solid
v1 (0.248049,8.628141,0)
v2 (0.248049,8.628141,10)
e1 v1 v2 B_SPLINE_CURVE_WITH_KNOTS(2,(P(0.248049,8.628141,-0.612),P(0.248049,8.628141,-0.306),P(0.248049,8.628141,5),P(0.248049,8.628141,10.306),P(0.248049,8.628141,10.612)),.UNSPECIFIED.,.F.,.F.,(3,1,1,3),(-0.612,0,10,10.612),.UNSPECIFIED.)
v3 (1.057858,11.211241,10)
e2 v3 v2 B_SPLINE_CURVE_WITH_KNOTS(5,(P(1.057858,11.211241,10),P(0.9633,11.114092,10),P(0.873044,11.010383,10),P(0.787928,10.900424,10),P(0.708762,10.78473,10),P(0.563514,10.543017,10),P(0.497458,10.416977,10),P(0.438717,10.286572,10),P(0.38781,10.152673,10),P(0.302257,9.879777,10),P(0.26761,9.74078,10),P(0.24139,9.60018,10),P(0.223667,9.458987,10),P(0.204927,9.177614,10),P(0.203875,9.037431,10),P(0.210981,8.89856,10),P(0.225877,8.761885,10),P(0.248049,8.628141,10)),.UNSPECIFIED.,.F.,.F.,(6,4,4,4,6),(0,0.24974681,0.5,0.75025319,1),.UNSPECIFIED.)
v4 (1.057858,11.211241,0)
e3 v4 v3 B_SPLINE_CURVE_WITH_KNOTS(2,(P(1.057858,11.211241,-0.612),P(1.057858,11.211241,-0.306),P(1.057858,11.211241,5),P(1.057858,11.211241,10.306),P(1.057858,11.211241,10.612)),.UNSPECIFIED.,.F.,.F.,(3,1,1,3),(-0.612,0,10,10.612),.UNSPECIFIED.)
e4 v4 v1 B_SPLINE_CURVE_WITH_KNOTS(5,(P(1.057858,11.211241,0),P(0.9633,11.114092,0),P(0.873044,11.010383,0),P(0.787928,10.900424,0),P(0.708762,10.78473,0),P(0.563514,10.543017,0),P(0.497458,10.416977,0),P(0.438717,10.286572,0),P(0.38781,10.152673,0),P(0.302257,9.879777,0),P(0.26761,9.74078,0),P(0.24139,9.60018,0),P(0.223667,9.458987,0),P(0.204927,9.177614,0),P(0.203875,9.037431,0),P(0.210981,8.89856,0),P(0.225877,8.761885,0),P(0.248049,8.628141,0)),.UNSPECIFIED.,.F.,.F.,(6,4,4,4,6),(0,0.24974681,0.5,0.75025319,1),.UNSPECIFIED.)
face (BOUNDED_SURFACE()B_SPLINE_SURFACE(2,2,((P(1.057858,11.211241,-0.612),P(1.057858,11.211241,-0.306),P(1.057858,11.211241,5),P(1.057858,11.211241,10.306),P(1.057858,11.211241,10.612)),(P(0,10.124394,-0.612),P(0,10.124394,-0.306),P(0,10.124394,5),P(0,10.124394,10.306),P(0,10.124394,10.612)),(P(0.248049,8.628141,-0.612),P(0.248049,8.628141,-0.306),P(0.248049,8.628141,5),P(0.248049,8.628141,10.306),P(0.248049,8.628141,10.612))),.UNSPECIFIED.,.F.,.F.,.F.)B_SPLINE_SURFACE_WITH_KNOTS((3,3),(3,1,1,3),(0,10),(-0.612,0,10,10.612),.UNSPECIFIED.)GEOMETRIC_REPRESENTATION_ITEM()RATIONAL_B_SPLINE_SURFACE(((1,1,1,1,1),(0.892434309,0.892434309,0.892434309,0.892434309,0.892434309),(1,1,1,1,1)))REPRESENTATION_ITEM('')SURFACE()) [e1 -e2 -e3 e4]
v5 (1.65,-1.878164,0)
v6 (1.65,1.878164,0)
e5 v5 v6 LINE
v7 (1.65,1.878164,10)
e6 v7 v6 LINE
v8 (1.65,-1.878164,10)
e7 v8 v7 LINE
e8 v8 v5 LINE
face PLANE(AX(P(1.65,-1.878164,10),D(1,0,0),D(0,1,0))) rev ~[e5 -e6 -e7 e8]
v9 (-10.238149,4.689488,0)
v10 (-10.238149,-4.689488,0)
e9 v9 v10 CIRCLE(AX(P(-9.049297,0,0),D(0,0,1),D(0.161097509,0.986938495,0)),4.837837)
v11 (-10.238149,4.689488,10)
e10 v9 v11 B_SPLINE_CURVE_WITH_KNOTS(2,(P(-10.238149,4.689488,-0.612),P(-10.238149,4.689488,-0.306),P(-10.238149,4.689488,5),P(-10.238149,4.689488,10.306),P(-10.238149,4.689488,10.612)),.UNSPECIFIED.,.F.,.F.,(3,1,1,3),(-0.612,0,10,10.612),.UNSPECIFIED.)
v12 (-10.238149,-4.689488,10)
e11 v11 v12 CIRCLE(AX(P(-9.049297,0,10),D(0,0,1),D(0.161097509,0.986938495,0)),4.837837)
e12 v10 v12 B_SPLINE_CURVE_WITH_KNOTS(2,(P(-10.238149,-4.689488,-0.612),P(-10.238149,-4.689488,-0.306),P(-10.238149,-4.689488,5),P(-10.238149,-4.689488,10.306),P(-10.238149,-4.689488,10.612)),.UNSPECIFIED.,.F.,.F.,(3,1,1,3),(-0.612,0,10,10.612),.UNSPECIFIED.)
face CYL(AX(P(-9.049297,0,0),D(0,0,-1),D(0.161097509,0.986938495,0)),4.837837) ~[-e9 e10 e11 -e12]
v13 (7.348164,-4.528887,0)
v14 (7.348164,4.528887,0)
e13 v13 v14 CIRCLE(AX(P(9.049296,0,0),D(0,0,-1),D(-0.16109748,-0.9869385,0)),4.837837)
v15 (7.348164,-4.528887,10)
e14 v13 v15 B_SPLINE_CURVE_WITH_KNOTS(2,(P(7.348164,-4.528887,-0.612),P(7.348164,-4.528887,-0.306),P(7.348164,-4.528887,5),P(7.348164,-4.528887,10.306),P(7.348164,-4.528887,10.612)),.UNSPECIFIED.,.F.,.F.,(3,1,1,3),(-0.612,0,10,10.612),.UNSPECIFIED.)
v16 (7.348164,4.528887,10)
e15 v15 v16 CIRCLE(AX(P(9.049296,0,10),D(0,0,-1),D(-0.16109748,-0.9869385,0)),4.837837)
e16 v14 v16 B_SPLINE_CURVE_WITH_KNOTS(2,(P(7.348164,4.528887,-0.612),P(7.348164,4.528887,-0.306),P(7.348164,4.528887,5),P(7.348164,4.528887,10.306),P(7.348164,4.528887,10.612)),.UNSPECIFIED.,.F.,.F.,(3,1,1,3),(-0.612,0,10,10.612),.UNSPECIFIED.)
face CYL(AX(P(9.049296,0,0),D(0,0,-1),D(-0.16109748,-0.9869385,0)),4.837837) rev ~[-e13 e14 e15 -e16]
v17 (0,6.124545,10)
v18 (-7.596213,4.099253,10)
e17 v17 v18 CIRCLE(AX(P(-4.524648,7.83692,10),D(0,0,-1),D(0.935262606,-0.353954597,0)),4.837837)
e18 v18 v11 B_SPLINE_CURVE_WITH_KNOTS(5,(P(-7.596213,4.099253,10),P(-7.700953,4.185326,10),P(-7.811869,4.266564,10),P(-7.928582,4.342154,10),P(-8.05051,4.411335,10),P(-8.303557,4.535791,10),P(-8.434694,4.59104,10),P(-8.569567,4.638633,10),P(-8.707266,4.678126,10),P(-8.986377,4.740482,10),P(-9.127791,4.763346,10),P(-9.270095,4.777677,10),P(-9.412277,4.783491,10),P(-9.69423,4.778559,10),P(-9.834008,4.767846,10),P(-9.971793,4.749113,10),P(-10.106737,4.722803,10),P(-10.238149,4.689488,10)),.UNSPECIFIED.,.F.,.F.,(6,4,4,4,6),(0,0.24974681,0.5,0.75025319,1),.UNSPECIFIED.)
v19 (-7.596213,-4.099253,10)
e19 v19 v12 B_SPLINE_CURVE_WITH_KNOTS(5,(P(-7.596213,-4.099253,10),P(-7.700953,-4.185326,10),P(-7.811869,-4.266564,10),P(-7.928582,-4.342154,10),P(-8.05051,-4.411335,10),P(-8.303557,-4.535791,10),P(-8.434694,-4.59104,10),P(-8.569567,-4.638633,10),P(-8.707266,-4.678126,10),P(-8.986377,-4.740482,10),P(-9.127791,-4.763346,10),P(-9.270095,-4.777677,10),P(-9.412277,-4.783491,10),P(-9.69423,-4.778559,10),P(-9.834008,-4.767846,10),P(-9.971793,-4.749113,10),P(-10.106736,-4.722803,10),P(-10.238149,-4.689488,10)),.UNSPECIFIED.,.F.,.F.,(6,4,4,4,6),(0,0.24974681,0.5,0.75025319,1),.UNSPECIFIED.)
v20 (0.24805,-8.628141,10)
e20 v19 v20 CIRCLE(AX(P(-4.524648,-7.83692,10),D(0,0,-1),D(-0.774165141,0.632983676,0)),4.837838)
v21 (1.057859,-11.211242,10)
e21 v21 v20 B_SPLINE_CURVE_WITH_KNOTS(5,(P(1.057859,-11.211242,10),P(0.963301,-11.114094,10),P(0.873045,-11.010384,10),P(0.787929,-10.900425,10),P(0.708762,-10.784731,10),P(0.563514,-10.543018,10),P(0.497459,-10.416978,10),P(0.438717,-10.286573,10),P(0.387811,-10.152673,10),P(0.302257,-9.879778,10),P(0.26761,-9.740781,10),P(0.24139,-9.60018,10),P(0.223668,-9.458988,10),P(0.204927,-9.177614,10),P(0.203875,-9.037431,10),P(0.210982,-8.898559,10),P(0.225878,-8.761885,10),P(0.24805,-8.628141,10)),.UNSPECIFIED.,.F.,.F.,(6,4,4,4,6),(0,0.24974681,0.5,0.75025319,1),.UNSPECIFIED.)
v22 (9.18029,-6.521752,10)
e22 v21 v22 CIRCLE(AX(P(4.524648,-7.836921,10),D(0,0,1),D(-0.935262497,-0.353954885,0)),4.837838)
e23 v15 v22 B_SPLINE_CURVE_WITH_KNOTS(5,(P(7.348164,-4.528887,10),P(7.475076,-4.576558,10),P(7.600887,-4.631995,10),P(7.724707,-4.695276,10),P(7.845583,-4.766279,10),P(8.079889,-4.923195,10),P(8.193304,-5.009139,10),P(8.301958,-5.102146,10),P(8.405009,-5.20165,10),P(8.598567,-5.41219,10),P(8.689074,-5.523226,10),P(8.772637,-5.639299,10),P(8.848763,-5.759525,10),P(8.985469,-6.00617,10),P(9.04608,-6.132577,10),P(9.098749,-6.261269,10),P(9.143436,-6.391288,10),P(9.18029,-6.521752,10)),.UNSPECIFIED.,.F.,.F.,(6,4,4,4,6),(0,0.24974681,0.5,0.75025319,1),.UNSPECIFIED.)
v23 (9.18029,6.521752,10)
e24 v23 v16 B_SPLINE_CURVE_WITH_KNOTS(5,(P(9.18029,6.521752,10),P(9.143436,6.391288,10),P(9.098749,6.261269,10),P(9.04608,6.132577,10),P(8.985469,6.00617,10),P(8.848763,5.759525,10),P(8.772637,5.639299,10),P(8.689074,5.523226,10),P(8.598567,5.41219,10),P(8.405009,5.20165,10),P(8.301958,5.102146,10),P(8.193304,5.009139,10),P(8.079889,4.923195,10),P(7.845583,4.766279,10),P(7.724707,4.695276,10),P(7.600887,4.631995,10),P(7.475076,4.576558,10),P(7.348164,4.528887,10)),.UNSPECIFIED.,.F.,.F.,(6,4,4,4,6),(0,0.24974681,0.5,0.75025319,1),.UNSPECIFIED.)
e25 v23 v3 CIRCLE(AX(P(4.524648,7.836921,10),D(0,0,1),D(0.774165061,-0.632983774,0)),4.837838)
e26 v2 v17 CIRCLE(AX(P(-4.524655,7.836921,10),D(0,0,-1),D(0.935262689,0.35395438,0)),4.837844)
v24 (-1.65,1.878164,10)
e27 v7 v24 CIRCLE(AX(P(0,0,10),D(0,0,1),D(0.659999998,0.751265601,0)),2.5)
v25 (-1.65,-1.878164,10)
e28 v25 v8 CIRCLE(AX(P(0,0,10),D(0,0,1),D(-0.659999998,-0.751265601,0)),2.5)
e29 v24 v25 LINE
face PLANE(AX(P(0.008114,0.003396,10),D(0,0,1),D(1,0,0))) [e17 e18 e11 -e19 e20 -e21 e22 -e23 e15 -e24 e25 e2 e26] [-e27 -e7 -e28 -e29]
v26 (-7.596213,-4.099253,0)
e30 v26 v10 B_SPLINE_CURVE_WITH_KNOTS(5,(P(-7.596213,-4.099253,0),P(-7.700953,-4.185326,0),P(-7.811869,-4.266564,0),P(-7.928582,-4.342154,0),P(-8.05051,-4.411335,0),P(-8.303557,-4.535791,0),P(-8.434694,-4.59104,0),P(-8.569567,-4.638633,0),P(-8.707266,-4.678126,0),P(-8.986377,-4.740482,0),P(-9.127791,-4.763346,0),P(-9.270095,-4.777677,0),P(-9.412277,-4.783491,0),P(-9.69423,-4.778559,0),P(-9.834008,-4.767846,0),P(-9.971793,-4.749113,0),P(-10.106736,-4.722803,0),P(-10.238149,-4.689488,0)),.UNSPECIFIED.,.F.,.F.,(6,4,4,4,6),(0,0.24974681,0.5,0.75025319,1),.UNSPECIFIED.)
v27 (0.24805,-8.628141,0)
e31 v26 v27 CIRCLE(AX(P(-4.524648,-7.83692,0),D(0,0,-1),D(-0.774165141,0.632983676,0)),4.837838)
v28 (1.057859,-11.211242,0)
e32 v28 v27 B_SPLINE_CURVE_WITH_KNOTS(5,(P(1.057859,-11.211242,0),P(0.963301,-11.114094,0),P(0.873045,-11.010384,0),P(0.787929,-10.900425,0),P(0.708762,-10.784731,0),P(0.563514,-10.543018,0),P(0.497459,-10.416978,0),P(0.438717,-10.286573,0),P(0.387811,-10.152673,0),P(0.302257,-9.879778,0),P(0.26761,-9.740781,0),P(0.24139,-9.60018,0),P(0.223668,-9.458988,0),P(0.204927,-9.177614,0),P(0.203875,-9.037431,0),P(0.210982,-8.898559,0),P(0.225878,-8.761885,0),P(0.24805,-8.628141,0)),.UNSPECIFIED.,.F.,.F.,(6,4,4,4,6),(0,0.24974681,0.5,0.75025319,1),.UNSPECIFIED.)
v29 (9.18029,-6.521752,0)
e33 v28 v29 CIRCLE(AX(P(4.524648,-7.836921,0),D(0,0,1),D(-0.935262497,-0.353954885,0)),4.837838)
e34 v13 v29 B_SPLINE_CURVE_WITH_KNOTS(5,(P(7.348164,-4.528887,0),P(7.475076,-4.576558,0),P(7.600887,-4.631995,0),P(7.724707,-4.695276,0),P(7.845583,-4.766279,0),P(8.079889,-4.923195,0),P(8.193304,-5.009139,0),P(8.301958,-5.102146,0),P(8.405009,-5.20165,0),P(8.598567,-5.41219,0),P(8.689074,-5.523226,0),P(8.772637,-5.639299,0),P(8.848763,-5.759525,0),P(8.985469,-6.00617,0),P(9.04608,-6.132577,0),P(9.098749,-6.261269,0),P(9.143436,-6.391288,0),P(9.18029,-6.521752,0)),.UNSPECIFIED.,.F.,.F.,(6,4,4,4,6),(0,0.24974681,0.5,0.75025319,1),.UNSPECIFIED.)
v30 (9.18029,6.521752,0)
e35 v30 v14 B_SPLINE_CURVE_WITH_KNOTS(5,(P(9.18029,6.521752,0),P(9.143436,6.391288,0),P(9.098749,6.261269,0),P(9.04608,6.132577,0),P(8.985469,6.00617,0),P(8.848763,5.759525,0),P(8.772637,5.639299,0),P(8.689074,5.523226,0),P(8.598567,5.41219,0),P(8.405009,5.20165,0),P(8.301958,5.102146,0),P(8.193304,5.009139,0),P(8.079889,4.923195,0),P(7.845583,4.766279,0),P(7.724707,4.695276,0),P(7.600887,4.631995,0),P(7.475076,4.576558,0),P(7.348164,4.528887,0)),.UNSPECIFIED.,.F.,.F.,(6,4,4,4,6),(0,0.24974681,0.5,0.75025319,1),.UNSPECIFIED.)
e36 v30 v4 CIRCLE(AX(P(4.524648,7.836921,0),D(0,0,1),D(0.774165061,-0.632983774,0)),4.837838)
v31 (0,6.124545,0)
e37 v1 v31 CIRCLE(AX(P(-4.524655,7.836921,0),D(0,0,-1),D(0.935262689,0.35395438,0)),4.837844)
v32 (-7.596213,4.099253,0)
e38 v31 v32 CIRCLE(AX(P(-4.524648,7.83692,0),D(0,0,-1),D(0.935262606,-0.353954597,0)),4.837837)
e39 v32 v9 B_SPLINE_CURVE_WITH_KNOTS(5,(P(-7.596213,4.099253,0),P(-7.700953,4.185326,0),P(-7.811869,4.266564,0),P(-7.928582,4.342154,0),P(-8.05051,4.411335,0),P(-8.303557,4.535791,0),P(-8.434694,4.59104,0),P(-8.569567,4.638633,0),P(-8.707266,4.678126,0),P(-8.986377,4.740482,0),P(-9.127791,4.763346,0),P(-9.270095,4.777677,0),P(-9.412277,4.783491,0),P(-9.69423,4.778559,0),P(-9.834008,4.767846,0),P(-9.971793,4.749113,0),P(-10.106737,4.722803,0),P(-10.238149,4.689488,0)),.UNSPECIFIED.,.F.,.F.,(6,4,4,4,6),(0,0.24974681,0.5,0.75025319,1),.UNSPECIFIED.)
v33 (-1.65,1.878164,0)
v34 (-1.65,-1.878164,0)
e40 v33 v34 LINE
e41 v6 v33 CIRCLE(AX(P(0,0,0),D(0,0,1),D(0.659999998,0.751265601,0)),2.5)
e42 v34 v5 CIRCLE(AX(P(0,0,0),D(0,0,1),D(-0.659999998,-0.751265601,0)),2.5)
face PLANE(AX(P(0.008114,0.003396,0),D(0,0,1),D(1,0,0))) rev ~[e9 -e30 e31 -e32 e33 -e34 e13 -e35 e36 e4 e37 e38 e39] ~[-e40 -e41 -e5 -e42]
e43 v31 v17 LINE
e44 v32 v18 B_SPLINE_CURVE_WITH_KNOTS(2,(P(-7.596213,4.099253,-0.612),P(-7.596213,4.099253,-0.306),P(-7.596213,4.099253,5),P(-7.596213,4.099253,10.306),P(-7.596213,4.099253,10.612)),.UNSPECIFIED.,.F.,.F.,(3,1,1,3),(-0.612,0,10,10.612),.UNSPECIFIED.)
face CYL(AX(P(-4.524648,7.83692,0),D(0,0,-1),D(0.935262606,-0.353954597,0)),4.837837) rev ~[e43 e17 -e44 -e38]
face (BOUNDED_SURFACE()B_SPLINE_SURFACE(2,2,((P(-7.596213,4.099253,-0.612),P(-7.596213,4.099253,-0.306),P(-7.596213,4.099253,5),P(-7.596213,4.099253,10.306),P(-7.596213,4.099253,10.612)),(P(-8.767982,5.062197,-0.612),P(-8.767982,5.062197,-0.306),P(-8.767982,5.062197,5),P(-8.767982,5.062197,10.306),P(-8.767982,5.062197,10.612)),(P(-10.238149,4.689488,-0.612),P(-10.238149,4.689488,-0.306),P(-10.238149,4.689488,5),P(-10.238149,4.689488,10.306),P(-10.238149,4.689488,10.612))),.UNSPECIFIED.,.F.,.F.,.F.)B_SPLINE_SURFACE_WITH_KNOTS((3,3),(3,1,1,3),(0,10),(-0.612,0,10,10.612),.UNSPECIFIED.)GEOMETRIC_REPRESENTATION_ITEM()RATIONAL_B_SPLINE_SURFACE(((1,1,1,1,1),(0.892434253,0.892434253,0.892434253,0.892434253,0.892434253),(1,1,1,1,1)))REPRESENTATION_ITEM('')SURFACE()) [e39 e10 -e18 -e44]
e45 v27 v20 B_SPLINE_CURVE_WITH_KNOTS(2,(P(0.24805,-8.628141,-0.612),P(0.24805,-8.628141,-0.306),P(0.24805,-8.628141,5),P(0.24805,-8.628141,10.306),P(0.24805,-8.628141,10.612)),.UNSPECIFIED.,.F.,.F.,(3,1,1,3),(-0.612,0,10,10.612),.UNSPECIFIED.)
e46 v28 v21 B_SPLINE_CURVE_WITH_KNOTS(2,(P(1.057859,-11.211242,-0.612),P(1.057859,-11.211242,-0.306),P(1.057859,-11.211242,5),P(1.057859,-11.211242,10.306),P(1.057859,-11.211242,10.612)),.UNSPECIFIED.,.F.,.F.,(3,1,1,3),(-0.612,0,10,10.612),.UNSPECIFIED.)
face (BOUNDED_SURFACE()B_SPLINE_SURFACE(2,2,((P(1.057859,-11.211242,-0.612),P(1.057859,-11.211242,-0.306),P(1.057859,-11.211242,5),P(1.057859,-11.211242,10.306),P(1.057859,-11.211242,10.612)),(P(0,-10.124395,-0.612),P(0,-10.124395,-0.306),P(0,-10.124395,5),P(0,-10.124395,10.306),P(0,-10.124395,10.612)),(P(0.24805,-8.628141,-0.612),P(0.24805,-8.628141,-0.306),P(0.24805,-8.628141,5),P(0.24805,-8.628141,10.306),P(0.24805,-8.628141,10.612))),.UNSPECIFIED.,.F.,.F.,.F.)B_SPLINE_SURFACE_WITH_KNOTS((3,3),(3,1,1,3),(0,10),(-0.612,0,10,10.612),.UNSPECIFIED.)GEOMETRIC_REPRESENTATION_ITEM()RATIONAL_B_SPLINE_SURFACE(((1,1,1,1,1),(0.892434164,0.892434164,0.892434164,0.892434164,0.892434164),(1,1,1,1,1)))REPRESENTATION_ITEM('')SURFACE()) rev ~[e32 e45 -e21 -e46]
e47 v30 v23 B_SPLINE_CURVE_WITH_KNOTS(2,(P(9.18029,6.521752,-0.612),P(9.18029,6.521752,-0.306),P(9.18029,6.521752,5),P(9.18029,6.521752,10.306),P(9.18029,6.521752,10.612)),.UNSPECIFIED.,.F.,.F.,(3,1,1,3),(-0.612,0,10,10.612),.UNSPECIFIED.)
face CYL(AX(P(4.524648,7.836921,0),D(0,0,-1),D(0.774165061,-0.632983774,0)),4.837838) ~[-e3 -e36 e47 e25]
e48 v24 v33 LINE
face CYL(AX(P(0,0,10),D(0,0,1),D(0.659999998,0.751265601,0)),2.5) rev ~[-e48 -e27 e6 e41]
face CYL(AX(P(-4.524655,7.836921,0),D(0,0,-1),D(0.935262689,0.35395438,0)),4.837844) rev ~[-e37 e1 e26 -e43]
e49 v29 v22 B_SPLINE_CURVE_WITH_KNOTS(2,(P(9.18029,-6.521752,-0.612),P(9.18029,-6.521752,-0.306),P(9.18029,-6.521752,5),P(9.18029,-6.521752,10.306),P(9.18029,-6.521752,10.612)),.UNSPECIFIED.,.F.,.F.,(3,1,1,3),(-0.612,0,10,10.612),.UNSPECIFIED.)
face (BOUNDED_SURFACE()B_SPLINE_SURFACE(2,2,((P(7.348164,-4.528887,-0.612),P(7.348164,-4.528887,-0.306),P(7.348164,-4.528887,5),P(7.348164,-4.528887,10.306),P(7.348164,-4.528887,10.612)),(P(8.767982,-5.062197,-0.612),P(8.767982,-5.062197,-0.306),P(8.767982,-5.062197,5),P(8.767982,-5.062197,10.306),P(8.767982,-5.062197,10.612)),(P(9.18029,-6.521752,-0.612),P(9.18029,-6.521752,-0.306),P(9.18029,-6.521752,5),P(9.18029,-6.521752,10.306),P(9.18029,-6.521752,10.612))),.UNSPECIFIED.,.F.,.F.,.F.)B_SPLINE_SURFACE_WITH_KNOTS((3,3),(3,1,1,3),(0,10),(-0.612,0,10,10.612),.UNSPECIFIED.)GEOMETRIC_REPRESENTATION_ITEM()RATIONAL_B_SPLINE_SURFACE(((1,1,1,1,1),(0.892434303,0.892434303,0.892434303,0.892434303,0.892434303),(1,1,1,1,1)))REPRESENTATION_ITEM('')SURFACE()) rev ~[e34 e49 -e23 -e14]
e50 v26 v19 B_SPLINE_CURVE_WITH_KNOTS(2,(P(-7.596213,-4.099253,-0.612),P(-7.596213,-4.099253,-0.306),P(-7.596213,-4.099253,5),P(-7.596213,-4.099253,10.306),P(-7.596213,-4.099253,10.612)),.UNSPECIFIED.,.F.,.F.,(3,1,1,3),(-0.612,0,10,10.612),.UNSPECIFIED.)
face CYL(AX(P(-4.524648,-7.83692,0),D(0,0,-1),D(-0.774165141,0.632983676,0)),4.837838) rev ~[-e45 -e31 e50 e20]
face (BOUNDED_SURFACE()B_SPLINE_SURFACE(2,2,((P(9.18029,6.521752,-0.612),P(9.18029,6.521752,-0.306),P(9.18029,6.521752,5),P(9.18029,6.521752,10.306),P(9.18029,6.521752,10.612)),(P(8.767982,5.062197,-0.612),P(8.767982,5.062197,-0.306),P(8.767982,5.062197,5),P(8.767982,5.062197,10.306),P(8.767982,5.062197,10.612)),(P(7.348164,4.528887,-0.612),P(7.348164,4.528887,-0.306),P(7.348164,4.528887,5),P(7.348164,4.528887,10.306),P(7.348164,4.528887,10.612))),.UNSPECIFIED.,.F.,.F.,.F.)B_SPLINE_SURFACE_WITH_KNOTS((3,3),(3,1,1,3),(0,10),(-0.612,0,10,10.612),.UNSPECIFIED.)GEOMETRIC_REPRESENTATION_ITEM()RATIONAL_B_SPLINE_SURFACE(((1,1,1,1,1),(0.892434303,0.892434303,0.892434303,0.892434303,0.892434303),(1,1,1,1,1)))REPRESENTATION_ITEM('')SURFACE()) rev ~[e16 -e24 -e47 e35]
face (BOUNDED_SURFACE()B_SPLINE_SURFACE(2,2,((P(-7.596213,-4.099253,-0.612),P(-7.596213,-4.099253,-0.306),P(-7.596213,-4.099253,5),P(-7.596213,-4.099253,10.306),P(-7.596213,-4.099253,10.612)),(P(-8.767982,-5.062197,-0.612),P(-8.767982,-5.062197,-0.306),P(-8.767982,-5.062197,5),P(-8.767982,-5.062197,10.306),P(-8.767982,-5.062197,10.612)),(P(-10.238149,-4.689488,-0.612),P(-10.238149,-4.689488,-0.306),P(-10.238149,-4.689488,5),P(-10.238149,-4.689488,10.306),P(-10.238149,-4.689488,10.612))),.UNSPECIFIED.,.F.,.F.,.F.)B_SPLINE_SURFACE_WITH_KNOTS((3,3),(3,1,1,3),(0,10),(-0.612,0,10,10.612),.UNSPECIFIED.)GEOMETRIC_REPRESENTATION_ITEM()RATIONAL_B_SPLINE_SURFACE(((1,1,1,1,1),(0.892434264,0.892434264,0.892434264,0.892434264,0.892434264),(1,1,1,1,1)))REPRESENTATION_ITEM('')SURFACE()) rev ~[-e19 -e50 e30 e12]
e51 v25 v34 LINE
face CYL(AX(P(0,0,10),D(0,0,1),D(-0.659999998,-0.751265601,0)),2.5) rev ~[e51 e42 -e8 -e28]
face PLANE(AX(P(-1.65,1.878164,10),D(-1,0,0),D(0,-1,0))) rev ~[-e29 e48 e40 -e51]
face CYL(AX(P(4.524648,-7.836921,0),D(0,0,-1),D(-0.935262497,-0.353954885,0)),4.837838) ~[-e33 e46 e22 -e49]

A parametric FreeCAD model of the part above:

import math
import FreeCAD as App
import Part
import Sketcher

V = App.Vector
Q = App.Units.Quantity


def edges_at(feature, points):
    """Names of the edges that pass closest to the given points."""
    edges = feature.Shape.Edges
    near = lambda p: min(range(len(edges)), key=lambda i: edges[i].distToShape(Part.Vertex(*p))[0])
    return sorted({f"Edge{near(p) + 1}" for p in points})

doc = App.newDocument("Part")
body = doc.addObject("PartDesign::Body", "Body")

sketch1 = body.newObject("Sketcher::SketchObject", "Sketch")
sketch1.AttachmentSupport = (doc.getObject("XY_Plane"), [""])
sketch1.MapMode = "FlatFace"
sketch1.addGeometry([
    Part.ArcOfCircle(Part.Circle(V(4.524648, 7.836921, 0), V(0, 0, 1), 4.837838), math.radians(-39.270605), math.radians(159.270595)),
    Part.ArcOfCircle(Part.Circle(V(-4.524655, 7.836921, 0), V(0, 0, 1), 4.837844), math.radians(-20.729374), math.radians(20.729374)),
    Part.ArcOfCircle(Part.Circle(V(-4.524648, 7.83692, 0), V(0, 0, 1), 4.837837), math.radians(-140.729406), math.radians(-20.729388)),
    Part.ArcOfCircle(Part.Circle(V(-9.049297, 0, 0), V(0, 0, 1), 4.837837), math.radians(80.729395), math.radians(279.270605)),
    Part.ArcOfCircle(Part.Circle(V(-4.524648, -7.83692, 0), V(0, 0, 1), 4.837838), math.radians(-20.729413), math.radians(140.729403)),
    Part.ArcOfCircle(Part.Circle(V(4.524648, -7.836921, 0), V(0, 0, 1), 4.837838), math.radians(-159.270595), math.radians(39.270605)),
    Part.ArcOfCircle(Part.Circle(V(9.049296, 0, 0), V(0, 0, 1), 4.837837), math.radians(99.270604), math.radians(260.729396)),
], False)
sketch1.addConstraint([
    Sketcher.Constraint("Coincident", 0, 2, 1, 2),
    Sketcher.Constraint("Tangent", 1, 1, 2, 2),
    Sketcher.Constraint("Coincident", 2, 1, 3, 1),
    Sketcher.Constraint("Coincident", 3, 2, 4, 2),
    Sketcher.Constraint("Coincident", 4, 1, 5, 1),
    Sketcher.Constraint("Coincident", 5, 2, 6, 2),
    Sketcher.Constraint("Coincident", 6, 1, 0, 1),
    Sketcher.Constraint("Equal", 0, 2),
    Sketcher.Constraint("Equal", 2, 3),
    Sketcher.Constraint("Equal", 3, 4),
    Sketcher.Constraint("Equal", 4, 5),
    Sketcher.Constraint("Equal", 5, 6),
    Sketcher.Constraint("Symmetric", 0, 3, 4, 3, -1, 1),
    Sketcher.Constraint("Symmetric", 1, 3, 5, 3, -1, 1),
    Sketcher.Constraint("Symmetric", 3, 3, 6, 3, -1, 1),
    Sketcher.Constraint("Symmetric", 0, 3, 1, 3, -2),
    Sketcher.Constraint("Symmetric", 2, 1, 6, 1, -2),
    Sketcher.Constraint("PointOnObject", 1, 1, -2),
    Sketcher.Constraint("Radius", 0, Q("4.837838 mm")),
    Sketcher.Constraint("DistanceX", -1, 1, 0, 3, Q("4.524648 mm")),
    Sketcher.Constraint("DistanceY", -1, 1, 0, 3, Q("7.836921 mm")),
    Sketcher.Constraint("DistanceY", -1, 1, 2, 1, Q("4.774648 mm")),
])
pad1 = body.newObject("PartDesign::Pad", "Pad")
pad1.Profile = sketch1
pad1.Length = 10

sketch2 = body.newObject("Sketcher::SketchObject", "Sketch001")
sketch2.AttachmentSupport = (doc.getObject("XY_Plane"), [""])
sketch2.MapMode = "FlatFace"
sketch2.AttachmentOffset = App.Placement(V(0, 0, 10), App.Rotation())
sketch2.addGeometry([
    Part.LineSegment(V(-1.65, 1.878164, 0), V(-1.65, -1.878164, 0)),
    Part.ArcOfCircle(Part.Circle(V(0, 0, 0), V(0, 0, 1), 2.5), math.radians(-131.299873), math.radians(-48.700127)),
    Part.LineSegment(V(1.65, -1.878164, 0), V(1.65, 1.878164, 0)),
    Part.ArcOfCircle(Part.Circle(V(0, 0, 0), V(0, 0, 1), 2.5), math.radians(48.700127), math.radians(131.299873)),
], False)
sketch2.addConstraint([
    Sketcher.Constraint("Coincident", 0, 2, 1, 1),
    Sketcher.Constraint("Coincident", 1, 2, 2, 1),
    Sketcher.Constraint("Coincident", 2, 2, 3, 1),
    Sketcher.Constraint("Coincident", 3, 2, 0, 1),
    Sketcher.Constraint("Vertical", 0),
    Sketcher.Constraint("Vertical", 2),
    Sketcher.Constraint("Coincident", 1, 3, -1, 1),
    Sketcher.Constraint("Coincident", 3, 3, -1, 1),
    Sketcher.Constraint("Equal", 1, 3),
    Sketcher.Constraint("Horizontal", 0, 2, 1, 2),
    Sketcher.Constraint("Radius", 1, Q("2.5 mm")),
    Sketcher.Constraint("DistanceX", 0, 2, 1, 2, Q("3.3 mm")),
])
pocket1 = body.newObject("PartDesign::Pocket", "Pocket")
pocket1.Profile = sketch2
pocket1.Type = "ThroughAll"
doc.recompute()

fillet = body.newObject("PartDesign::Fillet", "Fillet")
fillet.Base = (pocket1, edges_at(pocket1, [
    (0, 9.549, 5),
    (8.27, 4.775, 5),
    (8.27, -4.775, 5),
    (-8.27, -4.775, 5),
    (-8.27, 4.775, 5),
    (0, -9.549, 5),
]))
fillet.Radius = 3

doc.recompute()
